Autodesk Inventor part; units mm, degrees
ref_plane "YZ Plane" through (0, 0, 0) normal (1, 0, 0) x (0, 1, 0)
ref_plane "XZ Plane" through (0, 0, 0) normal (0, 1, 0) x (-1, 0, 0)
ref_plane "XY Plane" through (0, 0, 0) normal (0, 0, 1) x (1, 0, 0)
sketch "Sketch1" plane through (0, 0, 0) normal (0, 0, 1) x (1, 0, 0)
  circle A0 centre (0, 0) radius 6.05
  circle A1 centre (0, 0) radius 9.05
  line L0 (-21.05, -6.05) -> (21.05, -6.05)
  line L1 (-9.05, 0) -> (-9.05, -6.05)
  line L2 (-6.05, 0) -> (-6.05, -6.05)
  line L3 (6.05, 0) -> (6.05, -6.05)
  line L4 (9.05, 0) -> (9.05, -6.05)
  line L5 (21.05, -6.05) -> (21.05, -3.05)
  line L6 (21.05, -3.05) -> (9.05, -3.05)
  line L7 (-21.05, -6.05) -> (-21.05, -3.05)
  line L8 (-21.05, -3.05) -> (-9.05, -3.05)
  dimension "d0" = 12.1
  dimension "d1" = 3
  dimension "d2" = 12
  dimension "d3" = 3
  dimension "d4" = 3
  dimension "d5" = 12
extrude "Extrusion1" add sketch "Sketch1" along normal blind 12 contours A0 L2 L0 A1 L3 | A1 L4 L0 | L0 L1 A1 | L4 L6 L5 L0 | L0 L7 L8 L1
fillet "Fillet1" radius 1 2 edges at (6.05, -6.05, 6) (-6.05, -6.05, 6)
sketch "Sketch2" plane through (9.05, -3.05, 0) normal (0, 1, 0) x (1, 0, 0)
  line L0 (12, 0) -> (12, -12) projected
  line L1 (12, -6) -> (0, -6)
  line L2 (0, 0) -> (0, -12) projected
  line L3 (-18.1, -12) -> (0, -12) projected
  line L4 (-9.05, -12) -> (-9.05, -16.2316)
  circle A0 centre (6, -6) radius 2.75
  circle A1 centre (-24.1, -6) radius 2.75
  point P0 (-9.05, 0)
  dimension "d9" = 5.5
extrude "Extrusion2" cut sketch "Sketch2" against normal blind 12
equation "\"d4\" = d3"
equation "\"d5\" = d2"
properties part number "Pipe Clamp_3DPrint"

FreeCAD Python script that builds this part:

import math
import FreeCAD as App
import Part
import Sketcher
from FreeCAD import Vector
Q = App.Units.Quantity


def edges_at(feature, points):
    """Names of the edges that pass closest to the given points."""
    edges = feature.Shape.Edges
    near = lambda p: min(range(len(edges)), key=lambda i: edges[i].distToShape(Part.Vertex(*p))[0])
    return sorted({f"Edge{near(p) + 1}" for p in points})

doc = App.newDocument("Part")
body = doc.addObject("PartDesign::Body", "Body")

sketch1 = body.newObject("Sketcher::SketchObject", "Sketch")
sketch1.AttachmentSupport = (doc.getObject("XY_Plane"), [""])
sketch1.MapMode = "FlatFace"
sketch1.addGeometry(Part.ArcOfCircle(Part.Circle(Vector(0, 0, 0), Vector(0, 0, 1), 6), math.radians(0), math.radians(180)), False)
sketch1.addGeometry(Part.LineSegment(Vector(6, 0, 0), Vector(6, -6, 0)), False)
sketch1.addGeometry(Part.LineSegment(Vector(6, -6, 0), Vector(21.1, -6, 0)), False)
sketch1.addGeometry(Part.LineSegment(Vector(21.1, -6, 0), Vector(21.1, -3, 0)), False)
sketch1.addGeometry(Part.LineSegment(Vector(21.1, -3, 0), Vector(9.1, -3, 0)), False)
sketch1.addGeometry(Part.LineSegment(Vector(9.1, -3, 0), Vector(9.1, 0, 0)), False)
sketch1.addGeometry(Part.ArcOfCircle(Part.Circle(Vector(0, 0, 0), Vector(0, 0, 1), 9.1), math.radians(0), math.radians(180)), False)
sketch1.addGeometry(Part.LineSegment(Vector(-9.1, 0, 0), Vector(-9.1, -3, 0)), False)
sketch1.addGeometry(Part.LineSegment(Vector(-9.1, -3, 0), Vector(-21.1, -3, 0)), False)
sketch1.addGeometry(Part.LineSegment(Vector(-21.1, -3, 0), Vector(-21.1, -6, 0)), False)
sketch1.addGeometry(Part.LineSegment(Vector(-21.1, -6, 0), Vector(-6, -6, 0)), False)
sketch1.addGeometry(Part.LineSegment(Vector(-6, -6, 0), Vector(-6, 0, 0)), False)
sketch1.addConstraint(Sketcher.Constraint("Tangent", 0, 1, 1, 1))
sketch1.addConstraint(Sketcher.Constraint("Coincident", 1, 2, 2, 1))
sketch1.addConstraint(Sketcher.Constraint("Coincident", 2, 2, 3, 1))
sketch1.addConstraint(Sketcher.Constraint("Coincident", 3, 2, 4, 1))
sketch1.addConstraint(Sketcher.Constraint("Coincident", 4, 2, 5, 1))
sketch1.addConstraint(Sketcher.Constraint("Tangent", 5, 2, 6, 1))
sketch1.addConstraint(Sketcher.Constraint("Tangent", 6, 2, 7, 1))
sketch1.addConstraint(Sketcher.Constraint("Coincident", 7, 2, 8, 1))
sketch1.addConstraint(Sketcher.Constraint("Coincident", 8, 2, 9, 1))
sketch1.addConstraint(Sketcher.Constraint("Coincident", 9, 2, 10, 1))
sketch1.addConstraint(Sketcher.Constraint("Coincident", 10, 2, 11, 1))
sketch1.addConstraint(Sketcher.Constraint("Tangent", 11, 2, 0, 2))
sketch1.addConstraint(Sketcher.Constraint("Vertical", 1))
sketch1.addConstraint(Sketcher.Constraint("Horizontal", 2))
sketch1.addConstraint(Sketcher.Constraint("Vertical", 3))
sketch1.addConstraint(Sketcher.Constraint("Horizontal", 4))
sketch1.addConstraint(Sketcher.Constraint("Vertical", 5))
sketch1.addConstraint(Sketcher.Constraint("Vertical", 7))
sketch1.addConstraint(Sketcher.Constraint("Horizontal", 8))
sketch1.addConstraint(Sketcher.Constraint("Vertical", 9))
sketch1.addConstraint(Sketcher.Constraint("Horizontal", 10))
sketch1.addConstraint(Sketcher.Constraint("Vertical", 11))
sketch1.addConstraint(Sketcher.Constraint("Coincident", 0, 3, -1, 1))
sketch1.addConstraint(Sketcher.Constraint("Coincident", 6, 3, -1, 1))
sketch1.addConstraint(Sketcher.Constraint("Symmetric", 3, 2, 8, 2, -2))
sketch1.addConstraint(Sketcher.Constraint("Horizontal", 2, 2, 9, 2))
sketch1.addConstraint(Sketcher.Constraint("DistanceX", 4, 2, 4, 1, Q("12 mm")))
sketch1.addConstraint(Sketcher.Constraint("DistanceY", 3, 1, 3, 2, Q("3 mm")))
sketch1.addConstraint(Sketcher.Constraint("Radius", 0, Q("6.05 mm")))
sketch1.addConstraint(Sketcher.Constraint("DistanceX", 1, 2, 4, 2, Q("3 mm")))
sketch1.addConstraint(Sketcher.Constraint("DistanceY", 1, 2, 1, 1, Q("6.05 mm")))
pad1 = body.newObject("PartDesign::Pad", "Pad")
pad1.Profile = sketch1
pad1.Length = 12
doc.recompute()

fillet = body.newObject("PartDesign::Fillet", "Fillet")
fillet.Base = (pad1, edges_at(pad1, [(6.05, -6.05, 6), (-6.05, -6.05, 6)]))
fillet.Radius = 1

sketch2 = body.newObject("Sketcher::SketchObject", "Sketch001")
sketch2.AttachmentSupport = (doc.getObject("XZ_Plane"), [""])
sketch2.MapMode = "FlatFace"
sketch2.AttachmentOffset = App.Placement(Vector(0, 0, 3.05), App.Rotation())
sketch2.addGeometry(Part.Circle(Vector(15.1, 6, 0), Vector(0, 0, 1), 2.8), False)
sketch2.addGeometry(Part.Circle(Vector(-15.1, 6, 0), Vector(0, 0, 1), 2.8), False)
sketch2.addConstraint(Sketcher.Constraint("Equal", 0, 1))
sketch2.addConstraint(Sketcher.Constraint("Symmetric", 0, 3, 1, 3, -2))
sketch2.addConstraint(Sketcher.Constraint("Diameter", 0, Q("5.5 mm")))
sketch2.addConstraint(Sketcher.Constraint("DistanceY", -1, 1, 0, 3, Q("6 mm")))
sketch2.addConstraint(Sketcher.Constraint("DistanceX", 1, 3, 0, 3, Q("30.1 mm")))
pocket1 = body.newObject("PartDesign::Pocket", "Pocket")
pocket1.Profile = sketch2
pocket1.Length = 12
pocket1.Reversed = True

doc.recompute()
